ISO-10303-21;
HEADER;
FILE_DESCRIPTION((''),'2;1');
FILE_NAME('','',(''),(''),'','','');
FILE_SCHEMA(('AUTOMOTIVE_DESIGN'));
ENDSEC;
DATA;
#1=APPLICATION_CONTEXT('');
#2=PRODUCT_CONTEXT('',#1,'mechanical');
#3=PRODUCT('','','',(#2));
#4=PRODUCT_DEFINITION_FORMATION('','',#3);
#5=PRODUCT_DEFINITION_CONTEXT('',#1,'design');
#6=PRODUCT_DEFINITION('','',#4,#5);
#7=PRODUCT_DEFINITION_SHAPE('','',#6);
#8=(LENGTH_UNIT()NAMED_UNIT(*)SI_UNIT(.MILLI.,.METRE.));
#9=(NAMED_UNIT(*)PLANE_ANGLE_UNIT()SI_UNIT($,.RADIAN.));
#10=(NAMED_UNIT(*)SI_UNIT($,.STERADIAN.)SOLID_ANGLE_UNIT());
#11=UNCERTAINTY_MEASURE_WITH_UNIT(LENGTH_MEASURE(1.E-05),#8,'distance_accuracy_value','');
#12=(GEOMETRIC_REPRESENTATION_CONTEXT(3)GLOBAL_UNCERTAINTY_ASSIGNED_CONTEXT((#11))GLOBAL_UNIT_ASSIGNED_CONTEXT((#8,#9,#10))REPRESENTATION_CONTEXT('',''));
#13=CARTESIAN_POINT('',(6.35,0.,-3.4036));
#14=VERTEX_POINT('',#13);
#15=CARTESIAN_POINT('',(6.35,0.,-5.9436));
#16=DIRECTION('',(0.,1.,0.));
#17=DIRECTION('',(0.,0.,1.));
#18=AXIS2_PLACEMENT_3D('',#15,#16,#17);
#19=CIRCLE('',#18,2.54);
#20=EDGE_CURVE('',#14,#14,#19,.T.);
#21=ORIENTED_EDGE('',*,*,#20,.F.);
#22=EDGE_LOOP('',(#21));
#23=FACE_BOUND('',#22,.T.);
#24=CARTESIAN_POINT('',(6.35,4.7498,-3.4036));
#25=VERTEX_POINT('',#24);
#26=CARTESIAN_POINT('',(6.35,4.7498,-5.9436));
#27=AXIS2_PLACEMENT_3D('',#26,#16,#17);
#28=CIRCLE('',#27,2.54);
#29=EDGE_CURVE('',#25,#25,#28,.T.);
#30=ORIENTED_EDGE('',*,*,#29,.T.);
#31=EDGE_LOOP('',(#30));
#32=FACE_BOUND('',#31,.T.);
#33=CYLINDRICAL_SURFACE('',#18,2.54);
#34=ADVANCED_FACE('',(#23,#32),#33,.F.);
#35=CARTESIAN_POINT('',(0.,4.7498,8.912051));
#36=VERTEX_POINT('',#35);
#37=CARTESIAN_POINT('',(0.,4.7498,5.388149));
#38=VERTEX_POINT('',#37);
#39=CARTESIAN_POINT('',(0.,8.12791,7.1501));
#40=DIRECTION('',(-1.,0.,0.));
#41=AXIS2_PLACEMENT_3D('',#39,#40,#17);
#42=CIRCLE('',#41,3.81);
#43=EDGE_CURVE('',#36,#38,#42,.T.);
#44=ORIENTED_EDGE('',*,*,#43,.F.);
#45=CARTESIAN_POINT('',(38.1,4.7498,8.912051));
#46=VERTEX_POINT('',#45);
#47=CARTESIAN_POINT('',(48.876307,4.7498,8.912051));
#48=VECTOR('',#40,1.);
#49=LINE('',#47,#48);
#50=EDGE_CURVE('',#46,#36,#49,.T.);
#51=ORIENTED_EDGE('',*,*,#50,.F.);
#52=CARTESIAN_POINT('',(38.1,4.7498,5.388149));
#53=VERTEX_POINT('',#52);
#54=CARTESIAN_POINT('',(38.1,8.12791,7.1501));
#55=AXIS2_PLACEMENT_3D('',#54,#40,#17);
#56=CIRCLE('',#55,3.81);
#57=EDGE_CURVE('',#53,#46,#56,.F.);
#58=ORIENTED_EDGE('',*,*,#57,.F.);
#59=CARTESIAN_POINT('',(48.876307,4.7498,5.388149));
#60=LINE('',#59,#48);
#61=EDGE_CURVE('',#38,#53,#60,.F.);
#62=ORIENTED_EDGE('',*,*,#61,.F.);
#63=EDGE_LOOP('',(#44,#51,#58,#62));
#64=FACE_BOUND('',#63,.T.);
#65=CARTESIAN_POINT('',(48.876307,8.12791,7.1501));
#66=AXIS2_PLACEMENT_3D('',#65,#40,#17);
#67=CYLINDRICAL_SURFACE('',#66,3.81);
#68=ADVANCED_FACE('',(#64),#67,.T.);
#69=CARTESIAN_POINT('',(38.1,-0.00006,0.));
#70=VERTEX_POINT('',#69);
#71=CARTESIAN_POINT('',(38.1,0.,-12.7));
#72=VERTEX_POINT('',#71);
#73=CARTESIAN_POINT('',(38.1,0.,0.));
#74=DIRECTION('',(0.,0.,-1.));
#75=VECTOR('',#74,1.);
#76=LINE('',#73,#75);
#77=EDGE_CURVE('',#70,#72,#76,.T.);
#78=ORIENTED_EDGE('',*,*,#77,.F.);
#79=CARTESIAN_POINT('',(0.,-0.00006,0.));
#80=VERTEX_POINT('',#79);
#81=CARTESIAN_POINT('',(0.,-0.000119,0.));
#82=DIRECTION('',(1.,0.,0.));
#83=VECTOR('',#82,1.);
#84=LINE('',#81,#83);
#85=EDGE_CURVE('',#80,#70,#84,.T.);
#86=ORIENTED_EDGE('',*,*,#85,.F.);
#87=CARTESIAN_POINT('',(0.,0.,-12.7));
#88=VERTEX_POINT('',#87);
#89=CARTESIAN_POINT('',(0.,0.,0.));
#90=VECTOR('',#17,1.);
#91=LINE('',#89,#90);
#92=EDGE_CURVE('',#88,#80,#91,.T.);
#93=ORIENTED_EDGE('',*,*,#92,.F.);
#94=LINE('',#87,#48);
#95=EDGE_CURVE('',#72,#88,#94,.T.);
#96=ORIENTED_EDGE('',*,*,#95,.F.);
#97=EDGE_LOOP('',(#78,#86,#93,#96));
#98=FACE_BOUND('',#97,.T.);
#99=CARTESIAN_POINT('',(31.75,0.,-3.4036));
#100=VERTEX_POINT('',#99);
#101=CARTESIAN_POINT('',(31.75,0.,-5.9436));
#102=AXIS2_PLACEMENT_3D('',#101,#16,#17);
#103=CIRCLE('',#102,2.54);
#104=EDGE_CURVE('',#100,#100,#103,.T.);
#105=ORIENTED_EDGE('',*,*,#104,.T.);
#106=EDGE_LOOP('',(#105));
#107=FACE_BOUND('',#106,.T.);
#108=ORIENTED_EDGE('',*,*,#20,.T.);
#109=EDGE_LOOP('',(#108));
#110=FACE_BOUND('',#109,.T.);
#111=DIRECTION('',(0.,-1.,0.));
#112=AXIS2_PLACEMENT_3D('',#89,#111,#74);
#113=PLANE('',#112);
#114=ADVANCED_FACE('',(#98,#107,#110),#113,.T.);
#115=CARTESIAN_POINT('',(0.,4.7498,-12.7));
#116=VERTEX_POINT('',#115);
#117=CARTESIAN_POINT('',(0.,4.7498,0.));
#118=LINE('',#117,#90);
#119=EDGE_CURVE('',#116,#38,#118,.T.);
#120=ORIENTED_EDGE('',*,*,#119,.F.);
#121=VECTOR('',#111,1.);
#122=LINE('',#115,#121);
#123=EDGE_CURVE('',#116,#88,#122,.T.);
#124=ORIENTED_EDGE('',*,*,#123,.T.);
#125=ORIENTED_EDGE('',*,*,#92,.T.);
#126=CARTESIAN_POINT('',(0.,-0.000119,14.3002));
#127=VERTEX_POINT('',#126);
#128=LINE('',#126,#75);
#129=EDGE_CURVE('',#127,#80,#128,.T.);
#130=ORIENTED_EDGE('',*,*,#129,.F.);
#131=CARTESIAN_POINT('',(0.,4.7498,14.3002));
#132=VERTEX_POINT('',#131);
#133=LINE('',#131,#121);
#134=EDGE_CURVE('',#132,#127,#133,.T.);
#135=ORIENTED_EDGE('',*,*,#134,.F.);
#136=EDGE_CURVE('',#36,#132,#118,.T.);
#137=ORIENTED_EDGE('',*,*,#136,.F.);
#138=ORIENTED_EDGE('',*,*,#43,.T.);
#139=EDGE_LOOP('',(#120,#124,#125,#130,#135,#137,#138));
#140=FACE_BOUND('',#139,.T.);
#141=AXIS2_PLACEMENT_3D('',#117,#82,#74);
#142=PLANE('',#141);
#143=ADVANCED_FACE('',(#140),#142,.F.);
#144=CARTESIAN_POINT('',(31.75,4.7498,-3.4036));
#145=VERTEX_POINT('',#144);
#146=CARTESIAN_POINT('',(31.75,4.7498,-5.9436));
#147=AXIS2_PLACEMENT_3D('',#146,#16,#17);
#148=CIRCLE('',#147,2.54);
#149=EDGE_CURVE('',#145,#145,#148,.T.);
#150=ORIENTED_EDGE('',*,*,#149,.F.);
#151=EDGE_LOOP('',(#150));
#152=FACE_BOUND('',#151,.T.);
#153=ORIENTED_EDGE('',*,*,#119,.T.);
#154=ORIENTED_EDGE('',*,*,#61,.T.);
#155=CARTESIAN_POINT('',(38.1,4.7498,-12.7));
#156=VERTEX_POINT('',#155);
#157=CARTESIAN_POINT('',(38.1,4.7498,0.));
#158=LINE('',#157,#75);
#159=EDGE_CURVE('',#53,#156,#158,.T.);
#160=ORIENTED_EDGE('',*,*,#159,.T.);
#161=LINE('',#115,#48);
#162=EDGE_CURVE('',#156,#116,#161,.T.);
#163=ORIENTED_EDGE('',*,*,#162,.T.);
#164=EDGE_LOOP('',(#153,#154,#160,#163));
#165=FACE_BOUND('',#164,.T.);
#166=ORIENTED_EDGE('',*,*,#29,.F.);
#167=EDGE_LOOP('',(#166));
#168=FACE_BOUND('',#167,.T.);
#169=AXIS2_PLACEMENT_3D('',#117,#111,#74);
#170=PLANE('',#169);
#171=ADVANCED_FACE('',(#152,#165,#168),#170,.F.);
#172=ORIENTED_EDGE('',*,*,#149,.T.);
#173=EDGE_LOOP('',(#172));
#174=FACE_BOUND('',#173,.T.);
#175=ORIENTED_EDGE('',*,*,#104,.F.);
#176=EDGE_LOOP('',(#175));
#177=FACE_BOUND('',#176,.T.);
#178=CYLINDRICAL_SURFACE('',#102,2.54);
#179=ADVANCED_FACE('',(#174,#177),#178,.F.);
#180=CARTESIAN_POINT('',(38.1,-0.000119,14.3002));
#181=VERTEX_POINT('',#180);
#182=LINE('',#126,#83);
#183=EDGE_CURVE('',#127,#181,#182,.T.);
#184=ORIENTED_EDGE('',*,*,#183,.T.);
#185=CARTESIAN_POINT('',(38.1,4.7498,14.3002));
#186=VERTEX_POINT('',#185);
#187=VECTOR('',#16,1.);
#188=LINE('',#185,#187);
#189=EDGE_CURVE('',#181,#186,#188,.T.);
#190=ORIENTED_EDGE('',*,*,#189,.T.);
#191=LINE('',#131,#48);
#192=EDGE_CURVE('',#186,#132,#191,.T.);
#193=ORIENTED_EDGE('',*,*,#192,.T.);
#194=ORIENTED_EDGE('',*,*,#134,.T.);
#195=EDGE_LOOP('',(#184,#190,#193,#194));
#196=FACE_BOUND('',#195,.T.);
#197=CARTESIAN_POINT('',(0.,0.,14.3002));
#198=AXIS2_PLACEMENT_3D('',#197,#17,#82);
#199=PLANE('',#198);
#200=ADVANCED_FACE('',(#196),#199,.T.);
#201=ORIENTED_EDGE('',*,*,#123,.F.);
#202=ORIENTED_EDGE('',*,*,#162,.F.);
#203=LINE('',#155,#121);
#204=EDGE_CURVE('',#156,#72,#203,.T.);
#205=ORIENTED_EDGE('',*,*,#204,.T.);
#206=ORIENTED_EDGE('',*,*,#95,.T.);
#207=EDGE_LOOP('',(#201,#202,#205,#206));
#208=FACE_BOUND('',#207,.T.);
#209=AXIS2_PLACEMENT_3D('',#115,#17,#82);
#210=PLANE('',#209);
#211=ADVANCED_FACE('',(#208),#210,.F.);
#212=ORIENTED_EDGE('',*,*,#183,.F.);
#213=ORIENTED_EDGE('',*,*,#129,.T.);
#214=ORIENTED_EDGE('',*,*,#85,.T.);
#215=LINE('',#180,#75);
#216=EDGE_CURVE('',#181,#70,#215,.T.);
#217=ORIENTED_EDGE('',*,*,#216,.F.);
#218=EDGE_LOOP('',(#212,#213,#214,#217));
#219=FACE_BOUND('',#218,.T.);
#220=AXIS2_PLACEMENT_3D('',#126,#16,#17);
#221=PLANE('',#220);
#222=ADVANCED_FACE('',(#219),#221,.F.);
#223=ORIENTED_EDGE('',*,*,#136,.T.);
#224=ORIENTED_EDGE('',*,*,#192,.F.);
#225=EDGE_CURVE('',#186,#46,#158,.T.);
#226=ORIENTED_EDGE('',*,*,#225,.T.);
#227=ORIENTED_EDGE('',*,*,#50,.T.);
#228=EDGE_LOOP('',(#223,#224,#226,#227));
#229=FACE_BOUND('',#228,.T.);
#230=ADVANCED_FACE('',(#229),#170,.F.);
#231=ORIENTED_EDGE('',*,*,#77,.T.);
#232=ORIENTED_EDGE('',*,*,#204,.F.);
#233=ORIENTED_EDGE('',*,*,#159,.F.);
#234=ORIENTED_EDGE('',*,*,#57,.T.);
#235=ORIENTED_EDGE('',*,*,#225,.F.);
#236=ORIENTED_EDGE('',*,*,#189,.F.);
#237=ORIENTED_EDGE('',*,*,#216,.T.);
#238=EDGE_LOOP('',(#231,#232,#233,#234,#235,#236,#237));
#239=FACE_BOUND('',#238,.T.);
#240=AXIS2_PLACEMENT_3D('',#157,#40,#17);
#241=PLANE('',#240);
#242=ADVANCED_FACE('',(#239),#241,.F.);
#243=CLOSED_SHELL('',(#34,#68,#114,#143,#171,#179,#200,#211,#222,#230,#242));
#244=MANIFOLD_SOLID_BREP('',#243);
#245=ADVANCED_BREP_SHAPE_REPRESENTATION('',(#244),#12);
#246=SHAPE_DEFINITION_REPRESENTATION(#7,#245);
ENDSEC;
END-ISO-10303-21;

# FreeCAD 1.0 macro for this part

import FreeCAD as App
import Part
import Sketcher
Q = App.Units.Quantity


def add_polygon(sketch, points):
    """Adds a closed chain of lines whose ends are joined by coincident constraints."""
    first, n = sketch.GeometryCount, len(points)
    for a, b in zip(points, points[1:] + points[:1]):
        sketch.addGeometry(Part.LineSegment(App.Vector(*a, 0), App.Vector(*b, 0)), False)
    for i in range(n):
        sketch.addConstraint(Sketcher.Constraint("Coincident", first + i, 2, first + (i + 1) % n, 1))

doc = App.newDocument("Part")
params = doc.addObject("Spreadsheet::Sheet", "Params")
for row, (alias, value) in enumerate([
    ("sketch1_width", "1.5 in"),
    ("sketch1_height", "0.5 in"),
    ("pad1_length", "0.187 in"),
    ("sketch2_diameter", "0.2 in"),
    ("pocket1_length", "0.187 in"),
    ("sketch3_width", "1.5 in"),
    ("pad2_length", "0.563 in"),
    ("sketch4_diameter", "0.3 in"),
    ("pad3_length", "1.5 in"),
], start=1):
    params.set(f"A{row}", alias)
    params.set(f"B{row}", "=" + value)
    params.setAlias(f"B{row}", alias)

body = doc.addObject("PartDesign::Body", "Body")

sketch1 = body.newObject("Sketcher::SketchObject", "Sketch")
sketch1.AttachmentSupport = (doc.getObject("XZ_Plane"), [""])
sketch1.MapMode = "FlatFace"
add_polygon(sketch1, [(0, -12.7), (0, 0), (38.1, 0), (38.1, -12.7)])
sketch1.addConstraint([
    Sketcher.Constraint("Vertical", 0),
    Sketcher.Constraint("Horizontal", 1),
    Sketcher.Constraint("Vertical", 2),
    Sketcher.Constraint("Horizontal", 3),
    Sketcher.Constraint("Coincident", 0, 2, -1, 1),
    Sketcher.Constraint("DistanceX", 1, 1, 1, 2, Q("1.5 in")),
    Sketcher.Constraint("DistanceY", 0, 1, 0, 2, Q("0.5 in")),
])
sketch1.setExpression("Constraints[9]", "Params.sketch1_width")
sketch1.setExpression("Constraints[10]", "Params.sketch1_height")
pad1 = body.newObject("PartDesign::Pad", "Pad")
pad1.Profile = sketch1
pad1.setExpression("Length", "Params.pad1_length")
pad1.Reversed = True

sketch2 = body.newObject("Sketcher::SketchObject", "Sketch001")
sketch2.AttachmentSupport = (doc.getObject("XZ_Plane"), [""])
sketch2.MapMode = "FlatFace"
sketch2.AttachmentOffset = App.Placement(App.Vector(0, 0, -0.187 * 25.4), App.Rotation())
sketch2.addGeometry([
    Part.Circle(App.Vector(6.35, -5.9436, 0), App.Vector(0, 0, 1), 2.54),
    Part.Circle(App.Vector(31.75, -5.9436, 0), App.Vector(0, 0, 1), 2.54),
], False)
sketch2.addConstraint([
    Sketcher.Constraint("Equal", 0, 1),
    Sketcher.Constraint("Horizontal", 0, 3, 1, 3),
    Sketcher.Constraint("Diameter", 0, Q("0.2 in")),
    Sketcher.Constraint("DistanceX", 0, 3, 1, 3, Q("1 in")),
    Sketcher.Constraint("DistanceX", -1, 1, 0, 3, Q("0.25 in")),
    Sketcher.Constraint("DistanceY", 0, 3, -1, 1, Q("0.234 in")),
])
sketch2.setExpression("Constraints[2]", "Params.sketch2_diameter")
pocket1 = body.newObject("PartDesign::Pocket", "Pocket")
pocket1.Profile = sketch2
pocket1.setExpression("Length", "Params.pocket1_length")
pocket1.Reversed = True

sketch3 = body.newObject("Sketcher::SketchObject", "Sketch002")
sketch3.AttachmentSupport = (doc.getObject("XY_Plane"), [""])
sketch3.MapMode = "FlatFace"
add_polygon(sketch3, [(0, 4.7498), (0, -0.000119), (38.1, -0.000119), (38.1, 4.7498)])
sketch3.addConstraint([
    Sketcher.Constraint("Vertical", 0),
    Sketcher.Constraint("Horizontal", 1),
    Sketcher.Constraint("Vertical", 2),
    Sketcher.Constraint("Horizontal", 3),
    Sketcher.Constraint("PointOnObject", 0, 2, -2),
    Sketcher.Constraint("DistanceX", 1, 1, 1, 2, Q("1.5 in")),
    Sketcher.Constraint("DistanceY", -1, 1, 2, 2, Q("0.187 in")),
    Sketcher.Constraint("DistanceY", 0, 2, 0, 1, Q("4.749919 mm")),
])
sketch3.setExpression("Constraints[9]", "Params.sketch3_width")
pad2 = body.newObject("PartDesign::Pad", "Pad001")
pad2.Profile = sketch3
pad2.setExpression("Length", "Params.pad2_length")

sketch4 = body.newObject("Sketcher::SketchObject", "Sketch003")
sketch4.AttachmentSupport = (doc.getObject("YZ_Plane"), [""])
sketch4.MapMode = "FlatFace"
sketch4.addGeometry(Part.Circle(App.Vector(8.12791, 7.1501, 0), App.Vector(0, 0, 1), 3.81), False)
sketch4.addConstraint([
    Sketcher.Constraint("Diameter", 0, Q("0.3 in")),
    Sketcher.Constraint("DistanceY", -1, 1, 0, 3, Q("0.2815 in")),
    Sketcher.Constraint("DistanceX", -1, 1, 0, 3, Q("8.12791 mm")),
])
sketch4.setExpression("Constraints[0]", "Params.sketch4_diameter")
pad3 = body.newObject("PartDesign::Pad", "Pad002")
pad3.Profile = sketch4
pad3.setExpression("Length", "Params.pad3_length")

doc.recompute()
